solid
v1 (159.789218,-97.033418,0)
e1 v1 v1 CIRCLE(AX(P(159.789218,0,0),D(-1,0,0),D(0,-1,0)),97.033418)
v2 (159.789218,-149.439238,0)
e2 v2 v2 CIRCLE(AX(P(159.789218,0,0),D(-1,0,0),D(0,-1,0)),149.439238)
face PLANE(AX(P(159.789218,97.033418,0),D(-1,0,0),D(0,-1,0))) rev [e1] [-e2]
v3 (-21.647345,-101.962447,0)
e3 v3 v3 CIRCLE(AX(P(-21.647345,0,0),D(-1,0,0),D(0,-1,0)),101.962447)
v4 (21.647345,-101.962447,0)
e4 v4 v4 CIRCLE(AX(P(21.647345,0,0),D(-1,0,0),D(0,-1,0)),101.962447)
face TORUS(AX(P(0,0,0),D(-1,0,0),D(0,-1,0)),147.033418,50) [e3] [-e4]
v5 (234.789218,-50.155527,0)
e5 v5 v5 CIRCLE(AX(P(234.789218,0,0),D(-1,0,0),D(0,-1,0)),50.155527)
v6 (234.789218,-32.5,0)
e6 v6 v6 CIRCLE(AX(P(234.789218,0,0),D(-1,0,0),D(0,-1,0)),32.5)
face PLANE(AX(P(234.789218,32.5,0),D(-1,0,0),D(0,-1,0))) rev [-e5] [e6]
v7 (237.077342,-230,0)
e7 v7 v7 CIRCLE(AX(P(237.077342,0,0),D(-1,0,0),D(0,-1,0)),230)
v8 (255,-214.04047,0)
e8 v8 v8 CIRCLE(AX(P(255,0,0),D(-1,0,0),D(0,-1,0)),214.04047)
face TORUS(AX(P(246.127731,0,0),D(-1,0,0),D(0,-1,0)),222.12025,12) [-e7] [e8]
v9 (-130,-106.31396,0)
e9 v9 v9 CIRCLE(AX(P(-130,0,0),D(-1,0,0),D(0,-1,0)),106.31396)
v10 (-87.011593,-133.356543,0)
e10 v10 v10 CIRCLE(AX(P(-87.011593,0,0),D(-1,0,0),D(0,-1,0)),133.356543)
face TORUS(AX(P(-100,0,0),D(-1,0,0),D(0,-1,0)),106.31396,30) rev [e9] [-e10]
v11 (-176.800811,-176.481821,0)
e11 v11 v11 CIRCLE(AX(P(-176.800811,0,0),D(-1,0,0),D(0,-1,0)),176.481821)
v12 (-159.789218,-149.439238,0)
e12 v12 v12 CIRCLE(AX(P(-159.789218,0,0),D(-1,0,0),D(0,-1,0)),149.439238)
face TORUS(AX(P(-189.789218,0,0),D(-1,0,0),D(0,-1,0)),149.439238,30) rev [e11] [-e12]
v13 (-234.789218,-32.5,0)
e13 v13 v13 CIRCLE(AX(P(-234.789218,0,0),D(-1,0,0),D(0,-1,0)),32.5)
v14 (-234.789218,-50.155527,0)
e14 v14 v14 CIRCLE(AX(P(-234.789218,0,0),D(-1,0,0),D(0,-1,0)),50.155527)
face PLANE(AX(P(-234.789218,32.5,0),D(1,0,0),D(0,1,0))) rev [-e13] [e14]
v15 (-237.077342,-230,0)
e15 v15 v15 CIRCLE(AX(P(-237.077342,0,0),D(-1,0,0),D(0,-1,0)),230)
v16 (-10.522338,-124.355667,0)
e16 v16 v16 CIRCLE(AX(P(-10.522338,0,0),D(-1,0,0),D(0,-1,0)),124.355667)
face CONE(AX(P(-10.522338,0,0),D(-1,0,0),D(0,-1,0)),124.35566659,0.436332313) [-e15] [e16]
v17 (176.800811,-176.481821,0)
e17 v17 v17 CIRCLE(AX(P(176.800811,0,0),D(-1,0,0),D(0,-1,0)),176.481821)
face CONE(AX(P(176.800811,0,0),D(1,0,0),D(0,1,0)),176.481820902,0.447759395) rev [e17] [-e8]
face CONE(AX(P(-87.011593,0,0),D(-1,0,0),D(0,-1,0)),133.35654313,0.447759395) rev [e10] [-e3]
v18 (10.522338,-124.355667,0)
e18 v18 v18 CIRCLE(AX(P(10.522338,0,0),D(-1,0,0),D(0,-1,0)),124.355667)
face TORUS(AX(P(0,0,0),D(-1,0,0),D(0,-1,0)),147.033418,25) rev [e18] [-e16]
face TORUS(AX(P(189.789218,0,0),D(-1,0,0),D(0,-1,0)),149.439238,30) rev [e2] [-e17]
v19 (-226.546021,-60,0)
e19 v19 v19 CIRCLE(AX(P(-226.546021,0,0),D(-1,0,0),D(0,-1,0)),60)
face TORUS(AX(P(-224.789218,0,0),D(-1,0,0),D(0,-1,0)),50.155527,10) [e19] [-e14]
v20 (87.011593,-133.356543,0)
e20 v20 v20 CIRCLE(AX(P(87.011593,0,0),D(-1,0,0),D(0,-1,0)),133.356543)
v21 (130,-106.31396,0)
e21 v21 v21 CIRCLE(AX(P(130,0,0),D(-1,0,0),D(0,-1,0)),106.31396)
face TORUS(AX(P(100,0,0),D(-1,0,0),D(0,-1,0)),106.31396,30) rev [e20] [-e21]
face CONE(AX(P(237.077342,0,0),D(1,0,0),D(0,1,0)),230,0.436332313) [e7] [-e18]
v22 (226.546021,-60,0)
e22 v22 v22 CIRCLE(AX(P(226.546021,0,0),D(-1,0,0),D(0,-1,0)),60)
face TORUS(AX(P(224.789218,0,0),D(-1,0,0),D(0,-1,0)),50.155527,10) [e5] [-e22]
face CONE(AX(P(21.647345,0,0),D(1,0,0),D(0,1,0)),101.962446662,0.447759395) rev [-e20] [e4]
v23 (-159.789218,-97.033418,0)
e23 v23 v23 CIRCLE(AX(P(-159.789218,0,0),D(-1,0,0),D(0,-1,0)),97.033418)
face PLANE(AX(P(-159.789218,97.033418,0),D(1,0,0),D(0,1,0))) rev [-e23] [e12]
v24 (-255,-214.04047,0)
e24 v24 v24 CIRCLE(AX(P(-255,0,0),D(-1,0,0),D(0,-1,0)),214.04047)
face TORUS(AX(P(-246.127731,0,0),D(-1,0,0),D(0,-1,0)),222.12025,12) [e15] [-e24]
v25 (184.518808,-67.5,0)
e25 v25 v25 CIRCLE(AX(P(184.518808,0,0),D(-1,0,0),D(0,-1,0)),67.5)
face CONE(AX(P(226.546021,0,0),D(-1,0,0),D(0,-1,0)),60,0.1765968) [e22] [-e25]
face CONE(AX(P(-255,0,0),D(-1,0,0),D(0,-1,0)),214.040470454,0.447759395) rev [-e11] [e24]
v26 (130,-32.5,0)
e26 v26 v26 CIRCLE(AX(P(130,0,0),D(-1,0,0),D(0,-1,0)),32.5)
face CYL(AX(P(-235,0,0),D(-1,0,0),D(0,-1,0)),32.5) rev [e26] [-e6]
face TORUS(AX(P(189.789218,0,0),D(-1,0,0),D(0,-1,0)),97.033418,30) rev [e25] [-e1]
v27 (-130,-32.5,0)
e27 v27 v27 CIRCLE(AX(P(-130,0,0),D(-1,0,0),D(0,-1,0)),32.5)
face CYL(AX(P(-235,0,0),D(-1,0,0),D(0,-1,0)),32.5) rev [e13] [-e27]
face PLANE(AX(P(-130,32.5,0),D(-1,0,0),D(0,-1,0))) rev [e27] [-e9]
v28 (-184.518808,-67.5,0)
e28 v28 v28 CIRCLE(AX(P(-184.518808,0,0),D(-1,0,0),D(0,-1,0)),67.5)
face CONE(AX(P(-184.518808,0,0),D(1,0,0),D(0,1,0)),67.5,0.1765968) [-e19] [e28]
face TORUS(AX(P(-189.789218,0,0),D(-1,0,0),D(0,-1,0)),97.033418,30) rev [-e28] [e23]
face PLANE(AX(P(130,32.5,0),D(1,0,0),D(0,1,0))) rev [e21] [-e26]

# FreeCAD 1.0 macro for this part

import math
import FreeCAD as App
import Part
import Sketcher

V = App.Vector
Q = App.Units.Quantity

doc = App.newDocument("Part")
body = doc.addObject("PartDesign::Body", "Body")

# Sketch on XY plane
sketch1 = body.newObject("Sketcher::SketchObject", "Sketch")
sketch1.AttachmentSupport = (doc.getObject("XY_Plane"), [""])
sketch1.MapMode = "FlatFace"
sketch1.addGeometry(Part.LineSegment(V(-234.789218, 50.155527, 0), V(-234.789218, 32.5, 0)), False)
sketch1.addGeometry(Part.LineSegment(V(-234.789218, 32.5, 0), V(-130, 32.5, 0)), False)
sketch1.addGeometry(Part.LineSegment(V(-130, 32.5, 0), V(-130, 106.31396, 0)), False)
sketch1.addGeometry(Part.ArcOfCircle(Part.Circle(V(-100, 106.31396, 0), V(0, 0, 1), 30), math.radians(64.345276), math.radians(180)), False)
sketch1.addGeometry(Part.LineSegment(V(-87.011593, 133.356543, 0), V(-21.647345, 101.962447, 0)), False)
sketch1.addGeometry(Part.ArcOfCircle(Part.Circle(V(0, 147.033418, 0), V(0, 0, 1), 50), math.radians(-115.654724), math.radians(-64.345276)), False)
sketch1.addGeometry(Part.LineSegment(V(21.647345, 101.962447, 0), V(87.011593, 133.356543, 0)), False)
sketch1.addGeometry(Part.ArcOfCircle(Part.Circle(V(100, 106.31396, 0), V(0, 0, 1), 30), math.radians(0), math.radians(115.654724)), False)
sketch1.addGeometry(Part.LineSegment(V(130, 106.31396, 0), V(130, 32.5, 0)), False)
sketch1.addGeometry(Part.LineSegment(V(130, 32.5, 0), V(234.789218, 32.5, 0)), False)
sketch1.addGeometry(Part.LineSegment(V(234.789218, 32.5, 0), V(234.789218, 50.155527, 0)), False)
sketch1.addGeometry(Part.ArcOfCircle(Part.Circle(V(224.789218, 50.155527, 0), V(0, 0, 1), 10), math.radians(0), math.radians(79.881749)), False)
sketch1.addGeometry(Part.LineSegment(V(226.546021, 60, 0), V(184.518808, 67.5, 0)), False)
sketch1.addGeometry(Part.ArcOfCircle(Part.Circle(V(189.789218, 97.033418, 0), V(0, 0, 1), 30), math.radians(180), math.radians(259.881749)), False)
sketch1.addGeometry(Part.LineSegment(V(159.789218, 97.033418, 0), V(159.789218, 149.439238, 0)), False)
sketch1.addGeometry(Part.ArcOfCircle(Part.Circle(V(189.789218, 149.439238, 0), V(0, 0, 1), 30), math.radians(115.654724), math.radians(180)), False)
sketch1.addGeometry(Part.LineSegment(V(176.800811, 176.481821, 0), V(255, 214.04047, 0)), False)
sketch1.addGeometry(Part.ArcOfCircle(Part.Circle(V(246.127731, 222.12025, 0), V(0, 0, 1), 12), math.radians(-42.323433), math.radians(138.955435)), False)
sketch1.addGeometry(Part.LineSegment(V(237.077342, 230, 0), V(10.522338, 124.355667, 0)), False)
sketch1.addGeometry(Part.ArcOfCircle(Part.Circle(V(0, 147.033418, 0), V(0, 0, 1), 25), math.radians(-114.891011), math.radians(-65.108989)), False)
sketch1.addGeometry(Part.LineSegment(V(-10.522338, 124.355667, 0), V(-237.077342, 230, 0)), False)
sketch1.addGeometry(Part.ArcOfCircle(Part.Circle(V(-246.127731, 222.12025, 0), V(0, 0, 1), 12), math.radians(41.044565), math.radians(222.323433)), False)
sketch1.addGeometry(Part.LineSegment(V(-255, 214.04047, 0), V(-176.800811, 176.481821, 0)), False)
sketch1.addGeometry(Part.ArcOfCircle(Part.Circle(V(-189.789218, 149.439238, 0), V(0, 0, 1), 30), math.radians(0), math.radians(64.345276)), False)
sketch1.addGeometry(Part.LineSegment(V(-159.789218, 149.439238, 0), V(-159.789218, 97.033418, 0)), False)
sketch1.addGeometry(Part.ArcOfCircle(Part.Circle(V(-189.789218, 97.033418, 0), V(0, 0, 1), 30), math.radians(-79.881749), math.radians(0)), False)
sketch1.addGeometry(Part.LineSegment(V(-184.518808, 67.5, 0), V(-226.546021, 60, 0)), False)
sketch1.addGeometry(Part.ArcOfCircle(Part.Circle(V(-224.789218, 50.155527, 0), V(0, 0, 1), 10), math.radians(100.118251), math.radians(180)), False)
sketch1.addConstraint(Sketcher.Constraint("Coincident", 0, 2, 1, 1))
sketch1.addConstraint(Sketcher.Constraint("Coincident", 1, 2, 2, 1))
sketch1.addConstraint(Sketcher.Constraint("Tangent", 2, 2, 3, 2))
sketch1.addConstraint(Sketcher.Constraint("Tangent", 3, 1, 4, 1))
sketch1.addConstraint(Sketcher.Constraint("Tangent", 4, 2, 5, 1))
sketch1.addConstraint(Sketcher.Constraint("Tangent", 5, 2, 6, 1))
sketch1.addConstraint(Sketcher.Constraint("Tangent", 6, 2, 7, 2))
sketch1.addConstraint(Sketcher.Constraint("Tangent", 7, 1, 8, 1))
sketch1.addConstraint(Sketcher.Constraint("Coincident", 8, 2, 9, 1))
sketch1.addConstraint(Sketcher.Constraint("Coincident", 9, 2, 10, 1))
sketch1.addConstraint(Sketcher.Constraint("Tangent", 10, 2, 11, 1))
sketch1.addConstraint(Sketcher.Constraint("Tangent", 11, 2, 12, 1))
sketch1.addConstraint(Sketcher.Constraint("Tangent", 12, 2, 13, 2))
sketch1.addConstraint(Sketcher.Constraint("Tangent", 13, 1, 14, 1))
sketch1.addConstraint(Sketcher.Constraint("Tangent", 14, 2, 15, 2))
sketch1.addConstraint(Sketcher.Constraint("Tangent", 15, 1, 16, 1))
sketch1.addConstraint(Sketcher.Constraint("Coincident", 16, 2, 17, 1))
sketch1.addConstraint(Sketcher.Constraint("Coincident", 17, 2, 18, 1))
sketch1.addConstraint(Sketcher.Constraint("Coincident", 18, 2, 19, 2))
sketch1.addConstraint(Sketcher.Constraint("Coincident", 19, 1, 20, 1))
sketch1.addConstraint(Sketcher.Constraint("Coincident", 20, 2, 21, 1))
sketch1.addConstraint(Sketcher.Constraint("Coincident", 21, 2, 22, 1))
sketch1.addConstraint(Sketcher.Constraint("Tangent", 22, 2, 23, 2))
sketch1.addConstraint(Sketcher.Constraint("Tangent", 23, 1, 24, 1))
sketch1.addConstraint(Sketcher.Constraint("Tangent", 24, 2, 25, 2))
sketch1.addConstraint(Sketcher.Constraint("Tangent", 25, 1, 26, 1))
sketch1.addConstraint(Sketcher.Constraint("Tangent", 26, 2, 27, 1))
sketch1.addConstraint(Sketcher.Constraint("Tangent", 27, 2, 0, 1))
sketch1.addConstraint(Sketcher.Constraint("Vertical", 0))
sketch1.addConstraint(Sketcher.Constraint("Horizontal", 1))
sketch1.addConstraint(Sketcher.Constraint("Vertical", 2))
sketch1.addConstraint(Sketcher.Constraint("Vertical", 8))
sketch1.addConstraint(Sketcher.Constraint("Horizontal", 9))
sketch1.addConstraint(Sketcher.Constraint("Vertical", 10))
sketch1.addConstraint(Sketcher.Constraint("Vertical", 14))
sketch1.addConstraint(Sketcher.Constraint("Vertical", 24))
sketch1.addConstraint(Sketcher.Constraint("Coincident", 19, 3, 5, 3))
sketch1.addConstraint(Sketcher.Constraint("Equal", 3, 7))
sketch1.addConstraint(Sketcher.Constraint("Equal", 7, 13))
sketch1.addConstraint(Sketcher.Constraint("Equal", 13, 15))
sketch1.addConstraint(Sketcher.Constraint("Equal", 17, 21))
sketch1.addConstraint(Sketcher.Constraint("Equal", 15, 23))
sketch1.addConstraint(Sketcher.Constraint("Equal", 23, 25))
sketch1.addConstraint(Sketcher.Constraint("Equal", 11, 27))
sketch1.addConstraint(Sketcher.Constraint("Symmetric", 3, 3, 7, 3, -2))
sketch1.addConstraint(Sketcher.Constraint("Symmetric", 17, 3, 21, 3, -2))
sketch1.addConstraint(Sketcher.Constraint("Symmetric", 15, 3, 23, 3, -2))
sketch1.addConstraint(Sketcher.Constraint("Symmetric", 11, 3, 27, 3, -2))
sketch1.addConstraint(Sketcher.Constraint("Symmetric", 18, 2, 19, 1, -2))
sketch1.addConstraint(Sketcher.Constraint("Parallel", 6, 16))
sketch1.addConstraint(Sketcher.Constraint("Parallel", 4, 22))
sketch1.addConstraint(Sketcher.Constraint("Horizontal", 13, 3, 25, 3))
sketch1.addConstraint(Sketcher.Constraint("Horizontal", 1, 2, 8, 2))
sketch1.addConstraint(Sketcher.Constraint("Horizontal", 17, 2, 20, 2))
sketch1.addConstraint(Sketcher.Constraint("Radius", 3, Q("30 mm")))
sketch1.addConstraint(Sketcher.Constraint("Radius", 5, Q("50 mm")))
sketch1.addConstraint(Sketcher.Constraint("Radius", 11, Q("10 mm")))
sketch1.addConstraint(Sketcher.Constraint("Radius", 17, Q("12 mm")))
sketch1.addConstraint(Sketcher.Constraint("Radius", 19, Q("25 mm")))
sketch1.addConstraint(Sketcher.Constraint("Angle", 18, Q("-155 deg")))
sketch1.addConstraint(Sketcher.Constraint("DistanceX", 3, 3, -1, 1, Q("100 mm")))
sketch1.addConstraint(Sketcher.Constraint("DistanceY", -1, 1, 11, 2, Q("60 mm")))
sketch1.addConstraint(Sketcher.Constraint("DistanceX", -1, 1, 16, 2, Q("255 mm")))
sketch1.addConstraint(Sketcher.Constraint("DistanceY", -1, 1, 17, 2, Q("230 mm")))
sketch1.addConstraint(Sketcher.Constraint("DistanceX", 13, 3, 11, 3, Q("35 mm")))
sketch1.addConstraint(Sketcher.Constraint("DistanceY", 13, 3, 5, 3, Q("50 mm")))
sketch1.addConstraint(Sketcher.Constraint("DistanceY", 9, 2, 12, 2, Q("35 mm")))
sketch1.addConstraint(Sketcher.Constraint("DistanceY", -1, 1, 0, 2, Q("32.5 mm")))
sketch1.addConstraint(Sketcher.Constraint("DistanceY", 2, 1, 2, 2, Q("73.81396 mm")))
sketch1.addConstraint(Sketcher.Constraint("DistanceY", 14, 1, 14, 2, Q("52.40582 mm")))
sketch1.addConstraint(Sketcher.Constraint("Distance", 16, Q("86.751169 mm")))
sketch1.addConstraint(Sketcher.Constraint("Distance", 18, Q("249.975789 mm")))
revolution = body.newObject("PartDesign::Revolution", "Revolution")
revolution.Profile = sketch1
revolution.ReferenceAxis = (sketch1, ["H_Axis"])
revolution.Angle = 360

doc.recompute()
